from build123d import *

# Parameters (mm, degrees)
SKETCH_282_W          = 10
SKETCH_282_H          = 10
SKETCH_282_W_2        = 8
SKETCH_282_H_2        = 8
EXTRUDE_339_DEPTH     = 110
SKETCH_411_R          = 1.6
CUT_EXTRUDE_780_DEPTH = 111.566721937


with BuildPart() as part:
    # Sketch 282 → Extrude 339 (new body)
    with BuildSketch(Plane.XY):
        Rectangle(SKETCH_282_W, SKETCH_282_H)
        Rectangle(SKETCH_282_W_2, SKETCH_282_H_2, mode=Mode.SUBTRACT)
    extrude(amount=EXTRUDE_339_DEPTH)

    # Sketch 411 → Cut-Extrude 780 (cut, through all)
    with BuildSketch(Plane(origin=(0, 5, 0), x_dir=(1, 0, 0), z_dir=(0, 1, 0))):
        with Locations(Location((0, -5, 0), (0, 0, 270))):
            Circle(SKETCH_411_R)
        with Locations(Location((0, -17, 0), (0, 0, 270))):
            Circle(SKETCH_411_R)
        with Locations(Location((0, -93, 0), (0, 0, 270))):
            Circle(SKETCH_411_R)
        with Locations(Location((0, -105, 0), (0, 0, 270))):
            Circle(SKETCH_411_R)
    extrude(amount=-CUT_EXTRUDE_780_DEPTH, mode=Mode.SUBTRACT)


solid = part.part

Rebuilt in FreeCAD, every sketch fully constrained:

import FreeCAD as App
import Part
import Sketcher

V = App.Vector

doc = App.newDocument("Part")
body = doc.addObject("PartDesign::Body", "Body")

# Sketch on XY plane
sketch1 = body.newObject("Sketcher::SketchObject", "Sketch")
sketch1.AttachmentSupport = (doc.getObject("XY_Plane"), [""])
sketch1.MapMode = "FlatFace"
sketch1.addGeometry(Part.LineSegment(V(-5, 5, 0), V(-5, -5, 0)), False)
sketch1.addGeometry(Part.LineSegment(V(-5, -5, 0), V(5, -5, 0)), False)
sketch1.addGeometry(Part.LineSegment(V(5, -5, 0), V(5, 5, 0)), False)
sketch1.addGeometry(Part.LineSegment(V(5, 5, 0), V(-5, 5, 0)), False)
sketch1.addGeometry(Part.LineSegment(V(4, -4, 0), V(-4, -4, 0)), False)
sketch1.addGeometry(Part.LineSegment(V(-4, -4, 0), V(-4, 4, 0)), False)
sketch1.addGeometry(Part.LineSegment(V(-4, 4, 0), V(4, 4, 0)), False)
sketch1.addGeometry(Part.LineSegment(V(4, 4, 0), V(4, -4, 0)), False)
sketch1.addConstraint(Sketcher.Constraint("Coincident", 0, 2, 1, 1))
sketch1.addConstraint(Sketcher.Constraint("Coincident", 1, 2, 2, 1))
sketch1.addConstraint(Sketcher.Constraint("Coincident", 2, 2, 3, 1))
sketch1.addConstraint(Sketcher.Constraint("Coincident", 3, 2, 0, 1))
sketch1.addConstraint(Sketcher.Constraint("Coincident", 4, 2, 5, 1))
sketch1.addConstraint(Sketcher.Constraint("Coincident", 5, 2, 6, 1))
sketch1.addConstraint(Sketcher.Constraint("Coincident", 6, 2, 7, 1))
sketch1.addConstraint(Sketcher.Constraint("Coincident", 7, 2, 4, 1))
sketch1.addConstraint(Sketcher.Constraint("Vertical", 0))
sketch1.addConstraint(Sketcher.Constraint("Horizontal", 1))
sketch1.addConstraint(Sketcher.Constraint("Vertical", 2))
sketch1.addConstraint(Sketcher.Constraint("Horizontal", 3))
sketch1.addConstraint(Sketcher.Constraint("Horizontal", 4))
sketch1.addConstraint(Sketcher.Constraint("Vertical", 5))
sketch1.addConstraint(Sketcher.Constraint("Horizontal", 6))
sketch1.addConstraint(Sketcher.Constraint("Vertical", 7))
sketch1.addConstraint(Sketcher.Constraint("Symmetric", 0, 2, 2, 2, -1, 1))
sketch1.addConstraint(Sketcher.Constraint("Symmetric", 4, 2, 6, 2, -1, 1))
sketch1.addConstraint(Sketcher.Constraint("Equal", 3, 0))
sketch1.addConstraint(Sketcher.Constraint("Equal", 6, 5))
sketch1.addConstraint(Sketcher.Constraint("DistanceX", 1, 1, 1, 2, 10.0))
sketch1.addConstraint(Sketcher.Constraint("DistanceX", 4, 2, 4, 1, 8.0))
pad1 = body.newObject("PartDesign::Pad", "Pad")
pad1.Profile = sketch1
pad1.Length = 110

# Sketch on XZ plane
sketch2 = body.newObject("Sketcher::SketchObject", "Sketch001")
sketch2.AttachmentSupport = (doc.getObject("XZ_Plane"), [""])
sketch2.MapMode = "FlatFace"
sketch2.AttachmentOffset = App.Placement(V(0, 0, -5), App.Rotation())
sketch2.addGeometry(Part.Circle(V(0, 5, 0), V(0, 0, 1), 1.6), False)
sketch2.addGeometry(Part.Circle(V(0, 17, 0), V(0, 0, 1), 1.6), False)
sketch2.addGeometry(Part.Circle(V(0, 93, 0), V(0, 0, 1), 1.6), False)
sketch2.addGeometry(Part.Circle(V(0, 105, 0), V(0, 0, 1), 1.6), False)
sketch2.addConstraint(Sketcher.Constraint("Equal", 0, 1))
sketch2.addConstraint(Sketcher.Constraint("Equal", 1, 2))
sketch2.addConstraint(Sketcher.Constraint("Equal", 2, 3))
sketch2.addConstraint(Sketcher.Constraint("PointOnObject", 0, 3, -2))
sketch2.addConstraint(Sketcher.Constraint("PointOnObject", 1, 3, -2))
sketch2.addConstraint(Sketcher.Constraint("PointOnObject", 2, 3, -2))
sketch2.addConstraint(Sketcher.Constraint("PointOnObject", 3, 3, -2))
sketch2.addConstraint(Sketcher.Constraint("Diameter", 0, 3.2))
sketch2.addConstraint(Sketcher.Constraint("DistanceY", -1, 1, 0, 3, 5.0))
sketch2.addConstraint(Sketcher.Constraint("DistanceY", -1, 1, 1, 3, 17.0))
sketch2.addConstraint(Sketcher.Constraint("DistanceY", -1, 1, 2, 3, 93.0))
sketch2.addConstraint(Sketcher.Constraint("DistanceY", -1, 1, 3, 3, 105.0))
pocket1 = body.newObject("PartDesign::Pocket", "Pocket")
pocket1.Profile = sketch2
pocket1.Type = "ThroughAll"
pocket1.Reversed = True

doc.recompute()
